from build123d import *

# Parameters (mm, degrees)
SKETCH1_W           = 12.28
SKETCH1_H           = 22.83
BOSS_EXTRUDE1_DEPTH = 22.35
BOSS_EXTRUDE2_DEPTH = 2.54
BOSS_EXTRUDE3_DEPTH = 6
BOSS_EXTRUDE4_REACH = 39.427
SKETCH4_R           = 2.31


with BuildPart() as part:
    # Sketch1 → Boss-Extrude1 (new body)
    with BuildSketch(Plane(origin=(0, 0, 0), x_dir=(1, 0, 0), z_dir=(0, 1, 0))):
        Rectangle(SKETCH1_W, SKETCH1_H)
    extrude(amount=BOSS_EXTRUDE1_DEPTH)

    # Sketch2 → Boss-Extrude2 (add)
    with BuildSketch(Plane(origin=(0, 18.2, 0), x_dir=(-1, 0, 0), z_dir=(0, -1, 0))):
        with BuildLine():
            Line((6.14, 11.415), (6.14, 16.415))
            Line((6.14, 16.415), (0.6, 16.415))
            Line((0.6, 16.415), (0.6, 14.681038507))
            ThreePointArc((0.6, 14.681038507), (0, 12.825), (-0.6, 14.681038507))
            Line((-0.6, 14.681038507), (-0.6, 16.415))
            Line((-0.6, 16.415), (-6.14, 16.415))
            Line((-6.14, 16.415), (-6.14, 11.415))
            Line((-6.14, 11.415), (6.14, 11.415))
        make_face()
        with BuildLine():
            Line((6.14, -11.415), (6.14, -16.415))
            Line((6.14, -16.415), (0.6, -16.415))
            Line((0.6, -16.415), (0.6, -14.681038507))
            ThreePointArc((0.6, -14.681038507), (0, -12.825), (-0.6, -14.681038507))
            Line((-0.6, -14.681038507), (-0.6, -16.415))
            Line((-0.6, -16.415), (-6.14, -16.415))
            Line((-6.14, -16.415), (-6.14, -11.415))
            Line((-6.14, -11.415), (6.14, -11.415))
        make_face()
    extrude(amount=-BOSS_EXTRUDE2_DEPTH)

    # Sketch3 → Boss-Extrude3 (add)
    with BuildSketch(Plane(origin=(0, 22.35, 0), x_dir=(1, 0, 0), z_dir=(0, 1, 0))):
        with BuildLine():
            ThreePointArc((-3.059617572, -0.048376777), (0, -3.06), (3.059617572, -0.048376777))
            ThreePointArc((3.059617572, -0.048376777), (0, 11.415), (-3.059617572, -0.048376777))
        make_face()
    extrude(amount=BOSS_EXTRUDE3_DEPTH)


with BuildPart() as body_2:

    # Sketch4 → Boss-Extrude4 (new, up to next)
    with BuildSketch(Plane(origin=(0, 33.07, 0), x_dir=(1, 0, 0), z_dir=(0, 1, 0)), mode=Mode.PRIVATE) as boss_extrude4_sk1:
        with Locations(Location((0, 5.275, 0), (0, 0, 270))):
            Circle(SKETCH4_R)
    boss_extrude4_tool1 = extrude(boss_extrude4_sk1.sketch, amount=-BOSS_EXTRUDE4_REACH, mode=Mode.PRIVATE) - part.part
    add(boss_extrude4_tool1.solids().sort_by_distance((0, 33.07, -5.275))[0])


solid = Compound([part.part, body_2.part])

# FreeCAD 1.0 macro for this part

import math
import FreeCAD as App
import Part
import Sketcher
from FreeCAD import Vector

doc = App.newDocument("Part")
params = doc.addObject("Spreadsheet::Sheet", "Params")
for row, (alias, value) in enumerate([
    ("sketch1_width", "12.28 mm"),
    ("sketch1_height", "22.83 mm"),
    ("pad1_length", "22.35 mm"),
    ("sketch2_height", "5 mm"),
    ("sketch2_width", "5.54 mm"),
    ("sketch2_width2", "12.28 mm"),
    ("pad2_length", "2.54 mm"),
    ("sketch3_radius", "3.06 mm"),
    ("sketch3_radius2", "6.14 mm"),
    ("pad3_length", "6 mm"),
    ("sketch4_diameter", "4.62 mm"),
    ("pad4_length", "4.72 mm"),
], start=1):
    params.set(f"A{row}", alias)
    params.set(f"B{row}", "=" + value)
    params.setAlias(f"B{row}", alias)

body = doc.addObject("PartDesign::Body", "Body")

# Sketch on XZ plane
sketch1 = body.newObject("Sketcher::SketchObject", "Sketch")
sketch1.AttachmentSupport = (doc.getObject("XZ_Plane"), [""])
sketch1.MapMode = "FlatFace"
sketch1.addGeometry([
    Part.LineSegment(Vector(-6.14, -11.415, 0), Vector(-6.14, 11.415, 0)),
    Part.LineSegment(Vector(-6.14, 11.415, 0), Vector(6.14, 11.415, 0)),
    Part.LineSegment(Vector(6.14, 11.415, 0), Vector(6.14, -11.415, 0)),
    Part.LineSegment(Vector(6.14, -11.415, 0), Vector(-6.14, -11.415, 0)),
], False)
sketch1.addConstraint([
    Sketcher.Constraint("Coincident", 0, 2, 1, 1),
    Sketcher.Constraint("Coincident", 1, 2, 2, 1),
    Sketcher.Constraint("Coincident", 2, 2, 3, 1),
    Sketcher.Constraint("Coincident", 3, 2, 0, 1),
    Sketcher.Constraint("Vertical", 0),
    Sketcher.Constraint("Horizontal", 1),
    Sketcher.Constraint("Vertical", 2),
    Sketcher.Constraint("Horizontal", 3),
    Sketcher.Constraint("Symmetric", 0, 2, 2, 2, -1, 1),
    Sketcher.Constraint("DistanceX", 1, 1, 1, 2, 12.28),
    Sketcher.Constraint("DistanceY", 0, 1, 0, 2, 22.83),
])
sketch1.setExpression("Constraints[9]", "Params.sketch1_width")
sketch1.setExpression("Constraints[10]", "Params.sketch1_height")
pad1 = body.newObject("PartDesign::Pad", "Pad")
pad1.Profile = sketch1
pad1.setExpression("Length", "Params.pad1_length")
pad1.Reversed = True

# Sketch on XZ plane
sketch2 = body.newObject("Sketcher::SketchObject", "Sketch001")
sketch2.AttachmentSupport = (doc.getObject("XZ_Plane"), [""])
sketch2.MapMode = "FlatFace"
sketch2.AttachmentOffset = App.Placement(Vector(0, 0, -18.2), App.Rotation())
sketch2.addGeometry([
    Part.LineSegment(Vector(-6.14, -11.415, 0), Vector(-6.14, -16.415, 0)),  # 0
    Part.LineSegment(Vector(-6.14, -16.415, 0), Vector(-0.6, -16.415, 0)),  # 1
    Part.LineSegment(Vector(-0.6, -16.415, 0), Vector(-0.6, -14.681039, 0)),  # 2
    Part.ArcOfCircle(Part.Circle(Vector(0, -13.85, 0), Vector(0, 0, 1), 1.025), math.radians(-54.17116), math.radians(234.17116)),  # 3
    Part.LineSegment(Vector(0.6, -14.681039, 0), Vector(0.6, -16.415, 0)),  # 4
    Part.LineSegment(Vector(0.6, -16.415, 0), Vector(6.14, -16.415, 0)),  # 5
    Part.LineSegment(Vector(6.14, -16.415, 0), Vector(6.14, -11.415, 0)),  # 6
    Part.LineSegment(Vector(6.14, -11.415, 0), Vector(-6.14, -11.415, 0)),  # 7
    Part.LineSegment(Vector(-6.14, 16.415, 0), Vector(-6.14, 11.415, 0)),  # 8
    Part.LineSegment(Vector(-6.14, 11.415, 0), Vector(6.14, 11.415, 0)),  # 9
    Part.LineSegment(Vector(6.14, 11.415, 0), Vector(6.14, 16.415, 0)),  # 10
    Part.LineSegment(Vector(6.14, 16.415, 0), Vector(0.6, 16.415, 0)),  # 11
    Part.LineSegment(Vector(0.6, 16.415, 0), Vector(0.6, 14.681039, 0)),  # 12
    Part.ArcOfCircle(Part.Circle(Vector(0, 13.85, 0), Vector(0, 0, 1), 1.025), math.radians(125.82884), math.radians(414.17116)),  # 13
    Part.LineSegment(Vector(-0.6, 14.681039, 0), Vector(-0.6, 16.415, 0)),  # 14
    Part.LineSegment(Vector(-0.6, 16.415, 0), Vector(-6.14, 16.415, 0)),  # 15
], False)
sketch2.addConstraint([
    Sketcher.Constraint("Coincident", 0, 2, 1, 1),
    Sketcher.Constraint("Coincident", 1, 2, 2, 1),
    Sketcher.Constraint("Coincident", 2, 2, 3, 2),
    Sketcher.Constraint("Coincident", 3, 1, 4, 1),
    Sketcher.Constraint("Coincident", 4, 2, 5, 1),
    Sketcher.Constraint("Coincident", 5, 2, 6, 1),
    Sketcher.Constraint("Coincident", 6, 2, 7, 1),
    Sketcher.Constraint("Coincident", 7, 2, 0, 1),
    Sketcher.Constraint("Coincident", 8, 2, 9, 1),
    Sketcher.Constraint("Coincident", 9, 2, 10, 1),
    Sketcher.Constraint("Coincident", 10, 2, 11, 1),
    Sketcher.Constraint("Coincident", 11, 2, 12, 1),
    Sketcher.Constraint("Coincident", 12, 2, 13, 2),
    Sketcher.Constraint("Coincident", 13, 1, 14, 1),
    Sketcher.Constraint("Coincident", 14, 2, 15, 1),
    Sketcher.Constraint("Coincident", 15, 2, 8, 1),
    Sketcher.Constraint("Vertical", 0),
    Sketcher.Constraint("Horizontal", 1),
    Sketcher.Constraint("Vertical", 2),
    Sketcher.Constraint("Vertical", 4),
    Sketcher.Constraint("Horizontal", 5),
    Sketcher.Constraint("Vertical", 6),
    Sketcher.Constraint("Horizontal", 7),
    Sketcher.Constraint("Vertical", 8),
    Sketcher.Constraint("Horizontal", 9),
    Sketcher.Constraint("Vertical", 10),
    Sketcher.Constraint("Horizontal", 11),
    Sketcher.Constraint("Vertical", 12),
    Sketcher.Constraint("Vertical", 14),
    Sketcher.Constraint("Horizontal", 15),
    Sketcher.Constraint("Equal", 3, 13),
    Sketcher.Constraint("Symmetric", 3, 3, 13, 3, -1, 1),
    Sketcher.Constraint("Symmetric", 6, 2, 8, 2, -1, 1),
    Sketcher.Constraint("Symmetric", 0, 2, 10, 2, -1, 1),
    Sketcher.Constraint("Symmetric", 4, 2, 14, 2, -1, 1),
    Sketcher.Constraint("Symmetric", 2, 2, 3, 1, -2),
    Sketcher.Constraint("Symmetric", 0, 2, 5, 2, -2),
    Sketcher.Constraint("Horizontal", 12, 2, 13, 1),
    Sketcher.Constraint("DistanceY", 0, 2, 0, 1, 5.0),
    Sketcher.Constraint("Radius", 3, 1.025),
    Sketcher.Constraint("DistanceX", 1, 1, 1, 2, 5.54),
    Sketcher.Constraint("DistanceX", 7, 2, 7, 1, 12.28),
    Sketcher.Constraint("DistanceY", 3, 3, 13, 3, 27.7),
    Sketcher.Constraint("DistanceY", 7, 2, 8, 2, 22.83),
])
sketch2.setExpression("Constraints[38]", "Params.sketch2_height")
sketch2.setExpression("Constraints[40]", "Params.sketch2_width")
sketch2.setExpression("Constraints[41]", "Params.sketch2_width2")
pad2 = body.newObject("PartDesign::Pad", "Pad001")
pad2.Profile = sketch2
pad2.setExpression("Length", "Params.pad2_length")
pad2.Reversed = True

# Sketch on XZ plane
sketch3 = body.newObject("Sketcher::SketchObject", "Sketch002")
sketch3.AttachmentSupport = (doc.getObject("XZ_Plane"), [""])
sketch3.MapMode = "FlatFace"
sketch3.AttachmentOffset = App.Placement(Vector(0, 0, -22.35), App.Rotation())
sketch3.addGeometry([
    Part.ArcOfCircle(Part.Circle(Vector(0, 0, 0), Vector(0, 0, 1), 3.06), math.radians(0.90585), math.radians(179.09415)),
    Part.ArcOfCircle(Part.Circle(Vector(0, -5.275, 0), Vector(0, 0, 1), 6.14), math.radians(119.888191), math.radians(420.111809)),
], False)
sketch3.addConstraint([
    Sketcher.Constraint("Coincident", 0, 1, 1, 2),
    Sketcher.Constraint("Coincident", 1, 1, 0, 2),
    Sketcher.Constraint("Coincident", 0, 3, -1, 1),
    Sketcher.Constraint("PointOnObject", 1, 3, -2),
    Sketcher.Constraint("Radius", 0, 3.06),
    Sketcher.Constraint("Radius", 1, 6.14),
    Sketcher.Constraint("DistanceY", 1, 3, -1, 1, 5.275),
])
sketch3.setExpression("Constraints[4]", "Params.sketch3_radius")
sketch3.setExpression("Constraints[5]", "Params.sketch3_radius2")
pad3 = body.newObject("PartDesign::Pad", "Pad002")
pad3.Profile = sketch3
pad3.setExpression("Length", "Params.pad3_length")
pad3.Reversed = True
body2 = doc.addObject("PartDesign::Body", "Body001")

# Sketch on XZ plane
sketch4 = body2.newObject("Sketcher::SketchObject", "Sketch003")
sketch4.AttachmentSupport = (doc.getObject("XZ_Plane001"), [""])
sketch4.MapMode = "FlatFace"
sketch4.AttachmentOffset = App.Placement(Vector(0, 0, -33.07), App.Rotation())
sketch4.addGeometry(Part.Circle(Vector(0, -5.275, 0), Vector(0, 0, 1), 2.31), False)
sketch4.addConstraint([
    Sketcher.Constraint("PointOnObject", 0, 3, -2),
    Sketcher.Constraint("Diameter", 0, 4.62),
    Sketcher.Constraint("DistanceY", 0, 3, -1, 1, 5.275),
])
sketch4.setExpression("Constraints[1]", "Params.sketch4_diameter")
pad4 = body2.newObject("PartDesign::Pad", "Pad003")
pad4.Profile = sketch4
pad4.setExpression("Length", "Params.pad4_length")

doc.recompute()
